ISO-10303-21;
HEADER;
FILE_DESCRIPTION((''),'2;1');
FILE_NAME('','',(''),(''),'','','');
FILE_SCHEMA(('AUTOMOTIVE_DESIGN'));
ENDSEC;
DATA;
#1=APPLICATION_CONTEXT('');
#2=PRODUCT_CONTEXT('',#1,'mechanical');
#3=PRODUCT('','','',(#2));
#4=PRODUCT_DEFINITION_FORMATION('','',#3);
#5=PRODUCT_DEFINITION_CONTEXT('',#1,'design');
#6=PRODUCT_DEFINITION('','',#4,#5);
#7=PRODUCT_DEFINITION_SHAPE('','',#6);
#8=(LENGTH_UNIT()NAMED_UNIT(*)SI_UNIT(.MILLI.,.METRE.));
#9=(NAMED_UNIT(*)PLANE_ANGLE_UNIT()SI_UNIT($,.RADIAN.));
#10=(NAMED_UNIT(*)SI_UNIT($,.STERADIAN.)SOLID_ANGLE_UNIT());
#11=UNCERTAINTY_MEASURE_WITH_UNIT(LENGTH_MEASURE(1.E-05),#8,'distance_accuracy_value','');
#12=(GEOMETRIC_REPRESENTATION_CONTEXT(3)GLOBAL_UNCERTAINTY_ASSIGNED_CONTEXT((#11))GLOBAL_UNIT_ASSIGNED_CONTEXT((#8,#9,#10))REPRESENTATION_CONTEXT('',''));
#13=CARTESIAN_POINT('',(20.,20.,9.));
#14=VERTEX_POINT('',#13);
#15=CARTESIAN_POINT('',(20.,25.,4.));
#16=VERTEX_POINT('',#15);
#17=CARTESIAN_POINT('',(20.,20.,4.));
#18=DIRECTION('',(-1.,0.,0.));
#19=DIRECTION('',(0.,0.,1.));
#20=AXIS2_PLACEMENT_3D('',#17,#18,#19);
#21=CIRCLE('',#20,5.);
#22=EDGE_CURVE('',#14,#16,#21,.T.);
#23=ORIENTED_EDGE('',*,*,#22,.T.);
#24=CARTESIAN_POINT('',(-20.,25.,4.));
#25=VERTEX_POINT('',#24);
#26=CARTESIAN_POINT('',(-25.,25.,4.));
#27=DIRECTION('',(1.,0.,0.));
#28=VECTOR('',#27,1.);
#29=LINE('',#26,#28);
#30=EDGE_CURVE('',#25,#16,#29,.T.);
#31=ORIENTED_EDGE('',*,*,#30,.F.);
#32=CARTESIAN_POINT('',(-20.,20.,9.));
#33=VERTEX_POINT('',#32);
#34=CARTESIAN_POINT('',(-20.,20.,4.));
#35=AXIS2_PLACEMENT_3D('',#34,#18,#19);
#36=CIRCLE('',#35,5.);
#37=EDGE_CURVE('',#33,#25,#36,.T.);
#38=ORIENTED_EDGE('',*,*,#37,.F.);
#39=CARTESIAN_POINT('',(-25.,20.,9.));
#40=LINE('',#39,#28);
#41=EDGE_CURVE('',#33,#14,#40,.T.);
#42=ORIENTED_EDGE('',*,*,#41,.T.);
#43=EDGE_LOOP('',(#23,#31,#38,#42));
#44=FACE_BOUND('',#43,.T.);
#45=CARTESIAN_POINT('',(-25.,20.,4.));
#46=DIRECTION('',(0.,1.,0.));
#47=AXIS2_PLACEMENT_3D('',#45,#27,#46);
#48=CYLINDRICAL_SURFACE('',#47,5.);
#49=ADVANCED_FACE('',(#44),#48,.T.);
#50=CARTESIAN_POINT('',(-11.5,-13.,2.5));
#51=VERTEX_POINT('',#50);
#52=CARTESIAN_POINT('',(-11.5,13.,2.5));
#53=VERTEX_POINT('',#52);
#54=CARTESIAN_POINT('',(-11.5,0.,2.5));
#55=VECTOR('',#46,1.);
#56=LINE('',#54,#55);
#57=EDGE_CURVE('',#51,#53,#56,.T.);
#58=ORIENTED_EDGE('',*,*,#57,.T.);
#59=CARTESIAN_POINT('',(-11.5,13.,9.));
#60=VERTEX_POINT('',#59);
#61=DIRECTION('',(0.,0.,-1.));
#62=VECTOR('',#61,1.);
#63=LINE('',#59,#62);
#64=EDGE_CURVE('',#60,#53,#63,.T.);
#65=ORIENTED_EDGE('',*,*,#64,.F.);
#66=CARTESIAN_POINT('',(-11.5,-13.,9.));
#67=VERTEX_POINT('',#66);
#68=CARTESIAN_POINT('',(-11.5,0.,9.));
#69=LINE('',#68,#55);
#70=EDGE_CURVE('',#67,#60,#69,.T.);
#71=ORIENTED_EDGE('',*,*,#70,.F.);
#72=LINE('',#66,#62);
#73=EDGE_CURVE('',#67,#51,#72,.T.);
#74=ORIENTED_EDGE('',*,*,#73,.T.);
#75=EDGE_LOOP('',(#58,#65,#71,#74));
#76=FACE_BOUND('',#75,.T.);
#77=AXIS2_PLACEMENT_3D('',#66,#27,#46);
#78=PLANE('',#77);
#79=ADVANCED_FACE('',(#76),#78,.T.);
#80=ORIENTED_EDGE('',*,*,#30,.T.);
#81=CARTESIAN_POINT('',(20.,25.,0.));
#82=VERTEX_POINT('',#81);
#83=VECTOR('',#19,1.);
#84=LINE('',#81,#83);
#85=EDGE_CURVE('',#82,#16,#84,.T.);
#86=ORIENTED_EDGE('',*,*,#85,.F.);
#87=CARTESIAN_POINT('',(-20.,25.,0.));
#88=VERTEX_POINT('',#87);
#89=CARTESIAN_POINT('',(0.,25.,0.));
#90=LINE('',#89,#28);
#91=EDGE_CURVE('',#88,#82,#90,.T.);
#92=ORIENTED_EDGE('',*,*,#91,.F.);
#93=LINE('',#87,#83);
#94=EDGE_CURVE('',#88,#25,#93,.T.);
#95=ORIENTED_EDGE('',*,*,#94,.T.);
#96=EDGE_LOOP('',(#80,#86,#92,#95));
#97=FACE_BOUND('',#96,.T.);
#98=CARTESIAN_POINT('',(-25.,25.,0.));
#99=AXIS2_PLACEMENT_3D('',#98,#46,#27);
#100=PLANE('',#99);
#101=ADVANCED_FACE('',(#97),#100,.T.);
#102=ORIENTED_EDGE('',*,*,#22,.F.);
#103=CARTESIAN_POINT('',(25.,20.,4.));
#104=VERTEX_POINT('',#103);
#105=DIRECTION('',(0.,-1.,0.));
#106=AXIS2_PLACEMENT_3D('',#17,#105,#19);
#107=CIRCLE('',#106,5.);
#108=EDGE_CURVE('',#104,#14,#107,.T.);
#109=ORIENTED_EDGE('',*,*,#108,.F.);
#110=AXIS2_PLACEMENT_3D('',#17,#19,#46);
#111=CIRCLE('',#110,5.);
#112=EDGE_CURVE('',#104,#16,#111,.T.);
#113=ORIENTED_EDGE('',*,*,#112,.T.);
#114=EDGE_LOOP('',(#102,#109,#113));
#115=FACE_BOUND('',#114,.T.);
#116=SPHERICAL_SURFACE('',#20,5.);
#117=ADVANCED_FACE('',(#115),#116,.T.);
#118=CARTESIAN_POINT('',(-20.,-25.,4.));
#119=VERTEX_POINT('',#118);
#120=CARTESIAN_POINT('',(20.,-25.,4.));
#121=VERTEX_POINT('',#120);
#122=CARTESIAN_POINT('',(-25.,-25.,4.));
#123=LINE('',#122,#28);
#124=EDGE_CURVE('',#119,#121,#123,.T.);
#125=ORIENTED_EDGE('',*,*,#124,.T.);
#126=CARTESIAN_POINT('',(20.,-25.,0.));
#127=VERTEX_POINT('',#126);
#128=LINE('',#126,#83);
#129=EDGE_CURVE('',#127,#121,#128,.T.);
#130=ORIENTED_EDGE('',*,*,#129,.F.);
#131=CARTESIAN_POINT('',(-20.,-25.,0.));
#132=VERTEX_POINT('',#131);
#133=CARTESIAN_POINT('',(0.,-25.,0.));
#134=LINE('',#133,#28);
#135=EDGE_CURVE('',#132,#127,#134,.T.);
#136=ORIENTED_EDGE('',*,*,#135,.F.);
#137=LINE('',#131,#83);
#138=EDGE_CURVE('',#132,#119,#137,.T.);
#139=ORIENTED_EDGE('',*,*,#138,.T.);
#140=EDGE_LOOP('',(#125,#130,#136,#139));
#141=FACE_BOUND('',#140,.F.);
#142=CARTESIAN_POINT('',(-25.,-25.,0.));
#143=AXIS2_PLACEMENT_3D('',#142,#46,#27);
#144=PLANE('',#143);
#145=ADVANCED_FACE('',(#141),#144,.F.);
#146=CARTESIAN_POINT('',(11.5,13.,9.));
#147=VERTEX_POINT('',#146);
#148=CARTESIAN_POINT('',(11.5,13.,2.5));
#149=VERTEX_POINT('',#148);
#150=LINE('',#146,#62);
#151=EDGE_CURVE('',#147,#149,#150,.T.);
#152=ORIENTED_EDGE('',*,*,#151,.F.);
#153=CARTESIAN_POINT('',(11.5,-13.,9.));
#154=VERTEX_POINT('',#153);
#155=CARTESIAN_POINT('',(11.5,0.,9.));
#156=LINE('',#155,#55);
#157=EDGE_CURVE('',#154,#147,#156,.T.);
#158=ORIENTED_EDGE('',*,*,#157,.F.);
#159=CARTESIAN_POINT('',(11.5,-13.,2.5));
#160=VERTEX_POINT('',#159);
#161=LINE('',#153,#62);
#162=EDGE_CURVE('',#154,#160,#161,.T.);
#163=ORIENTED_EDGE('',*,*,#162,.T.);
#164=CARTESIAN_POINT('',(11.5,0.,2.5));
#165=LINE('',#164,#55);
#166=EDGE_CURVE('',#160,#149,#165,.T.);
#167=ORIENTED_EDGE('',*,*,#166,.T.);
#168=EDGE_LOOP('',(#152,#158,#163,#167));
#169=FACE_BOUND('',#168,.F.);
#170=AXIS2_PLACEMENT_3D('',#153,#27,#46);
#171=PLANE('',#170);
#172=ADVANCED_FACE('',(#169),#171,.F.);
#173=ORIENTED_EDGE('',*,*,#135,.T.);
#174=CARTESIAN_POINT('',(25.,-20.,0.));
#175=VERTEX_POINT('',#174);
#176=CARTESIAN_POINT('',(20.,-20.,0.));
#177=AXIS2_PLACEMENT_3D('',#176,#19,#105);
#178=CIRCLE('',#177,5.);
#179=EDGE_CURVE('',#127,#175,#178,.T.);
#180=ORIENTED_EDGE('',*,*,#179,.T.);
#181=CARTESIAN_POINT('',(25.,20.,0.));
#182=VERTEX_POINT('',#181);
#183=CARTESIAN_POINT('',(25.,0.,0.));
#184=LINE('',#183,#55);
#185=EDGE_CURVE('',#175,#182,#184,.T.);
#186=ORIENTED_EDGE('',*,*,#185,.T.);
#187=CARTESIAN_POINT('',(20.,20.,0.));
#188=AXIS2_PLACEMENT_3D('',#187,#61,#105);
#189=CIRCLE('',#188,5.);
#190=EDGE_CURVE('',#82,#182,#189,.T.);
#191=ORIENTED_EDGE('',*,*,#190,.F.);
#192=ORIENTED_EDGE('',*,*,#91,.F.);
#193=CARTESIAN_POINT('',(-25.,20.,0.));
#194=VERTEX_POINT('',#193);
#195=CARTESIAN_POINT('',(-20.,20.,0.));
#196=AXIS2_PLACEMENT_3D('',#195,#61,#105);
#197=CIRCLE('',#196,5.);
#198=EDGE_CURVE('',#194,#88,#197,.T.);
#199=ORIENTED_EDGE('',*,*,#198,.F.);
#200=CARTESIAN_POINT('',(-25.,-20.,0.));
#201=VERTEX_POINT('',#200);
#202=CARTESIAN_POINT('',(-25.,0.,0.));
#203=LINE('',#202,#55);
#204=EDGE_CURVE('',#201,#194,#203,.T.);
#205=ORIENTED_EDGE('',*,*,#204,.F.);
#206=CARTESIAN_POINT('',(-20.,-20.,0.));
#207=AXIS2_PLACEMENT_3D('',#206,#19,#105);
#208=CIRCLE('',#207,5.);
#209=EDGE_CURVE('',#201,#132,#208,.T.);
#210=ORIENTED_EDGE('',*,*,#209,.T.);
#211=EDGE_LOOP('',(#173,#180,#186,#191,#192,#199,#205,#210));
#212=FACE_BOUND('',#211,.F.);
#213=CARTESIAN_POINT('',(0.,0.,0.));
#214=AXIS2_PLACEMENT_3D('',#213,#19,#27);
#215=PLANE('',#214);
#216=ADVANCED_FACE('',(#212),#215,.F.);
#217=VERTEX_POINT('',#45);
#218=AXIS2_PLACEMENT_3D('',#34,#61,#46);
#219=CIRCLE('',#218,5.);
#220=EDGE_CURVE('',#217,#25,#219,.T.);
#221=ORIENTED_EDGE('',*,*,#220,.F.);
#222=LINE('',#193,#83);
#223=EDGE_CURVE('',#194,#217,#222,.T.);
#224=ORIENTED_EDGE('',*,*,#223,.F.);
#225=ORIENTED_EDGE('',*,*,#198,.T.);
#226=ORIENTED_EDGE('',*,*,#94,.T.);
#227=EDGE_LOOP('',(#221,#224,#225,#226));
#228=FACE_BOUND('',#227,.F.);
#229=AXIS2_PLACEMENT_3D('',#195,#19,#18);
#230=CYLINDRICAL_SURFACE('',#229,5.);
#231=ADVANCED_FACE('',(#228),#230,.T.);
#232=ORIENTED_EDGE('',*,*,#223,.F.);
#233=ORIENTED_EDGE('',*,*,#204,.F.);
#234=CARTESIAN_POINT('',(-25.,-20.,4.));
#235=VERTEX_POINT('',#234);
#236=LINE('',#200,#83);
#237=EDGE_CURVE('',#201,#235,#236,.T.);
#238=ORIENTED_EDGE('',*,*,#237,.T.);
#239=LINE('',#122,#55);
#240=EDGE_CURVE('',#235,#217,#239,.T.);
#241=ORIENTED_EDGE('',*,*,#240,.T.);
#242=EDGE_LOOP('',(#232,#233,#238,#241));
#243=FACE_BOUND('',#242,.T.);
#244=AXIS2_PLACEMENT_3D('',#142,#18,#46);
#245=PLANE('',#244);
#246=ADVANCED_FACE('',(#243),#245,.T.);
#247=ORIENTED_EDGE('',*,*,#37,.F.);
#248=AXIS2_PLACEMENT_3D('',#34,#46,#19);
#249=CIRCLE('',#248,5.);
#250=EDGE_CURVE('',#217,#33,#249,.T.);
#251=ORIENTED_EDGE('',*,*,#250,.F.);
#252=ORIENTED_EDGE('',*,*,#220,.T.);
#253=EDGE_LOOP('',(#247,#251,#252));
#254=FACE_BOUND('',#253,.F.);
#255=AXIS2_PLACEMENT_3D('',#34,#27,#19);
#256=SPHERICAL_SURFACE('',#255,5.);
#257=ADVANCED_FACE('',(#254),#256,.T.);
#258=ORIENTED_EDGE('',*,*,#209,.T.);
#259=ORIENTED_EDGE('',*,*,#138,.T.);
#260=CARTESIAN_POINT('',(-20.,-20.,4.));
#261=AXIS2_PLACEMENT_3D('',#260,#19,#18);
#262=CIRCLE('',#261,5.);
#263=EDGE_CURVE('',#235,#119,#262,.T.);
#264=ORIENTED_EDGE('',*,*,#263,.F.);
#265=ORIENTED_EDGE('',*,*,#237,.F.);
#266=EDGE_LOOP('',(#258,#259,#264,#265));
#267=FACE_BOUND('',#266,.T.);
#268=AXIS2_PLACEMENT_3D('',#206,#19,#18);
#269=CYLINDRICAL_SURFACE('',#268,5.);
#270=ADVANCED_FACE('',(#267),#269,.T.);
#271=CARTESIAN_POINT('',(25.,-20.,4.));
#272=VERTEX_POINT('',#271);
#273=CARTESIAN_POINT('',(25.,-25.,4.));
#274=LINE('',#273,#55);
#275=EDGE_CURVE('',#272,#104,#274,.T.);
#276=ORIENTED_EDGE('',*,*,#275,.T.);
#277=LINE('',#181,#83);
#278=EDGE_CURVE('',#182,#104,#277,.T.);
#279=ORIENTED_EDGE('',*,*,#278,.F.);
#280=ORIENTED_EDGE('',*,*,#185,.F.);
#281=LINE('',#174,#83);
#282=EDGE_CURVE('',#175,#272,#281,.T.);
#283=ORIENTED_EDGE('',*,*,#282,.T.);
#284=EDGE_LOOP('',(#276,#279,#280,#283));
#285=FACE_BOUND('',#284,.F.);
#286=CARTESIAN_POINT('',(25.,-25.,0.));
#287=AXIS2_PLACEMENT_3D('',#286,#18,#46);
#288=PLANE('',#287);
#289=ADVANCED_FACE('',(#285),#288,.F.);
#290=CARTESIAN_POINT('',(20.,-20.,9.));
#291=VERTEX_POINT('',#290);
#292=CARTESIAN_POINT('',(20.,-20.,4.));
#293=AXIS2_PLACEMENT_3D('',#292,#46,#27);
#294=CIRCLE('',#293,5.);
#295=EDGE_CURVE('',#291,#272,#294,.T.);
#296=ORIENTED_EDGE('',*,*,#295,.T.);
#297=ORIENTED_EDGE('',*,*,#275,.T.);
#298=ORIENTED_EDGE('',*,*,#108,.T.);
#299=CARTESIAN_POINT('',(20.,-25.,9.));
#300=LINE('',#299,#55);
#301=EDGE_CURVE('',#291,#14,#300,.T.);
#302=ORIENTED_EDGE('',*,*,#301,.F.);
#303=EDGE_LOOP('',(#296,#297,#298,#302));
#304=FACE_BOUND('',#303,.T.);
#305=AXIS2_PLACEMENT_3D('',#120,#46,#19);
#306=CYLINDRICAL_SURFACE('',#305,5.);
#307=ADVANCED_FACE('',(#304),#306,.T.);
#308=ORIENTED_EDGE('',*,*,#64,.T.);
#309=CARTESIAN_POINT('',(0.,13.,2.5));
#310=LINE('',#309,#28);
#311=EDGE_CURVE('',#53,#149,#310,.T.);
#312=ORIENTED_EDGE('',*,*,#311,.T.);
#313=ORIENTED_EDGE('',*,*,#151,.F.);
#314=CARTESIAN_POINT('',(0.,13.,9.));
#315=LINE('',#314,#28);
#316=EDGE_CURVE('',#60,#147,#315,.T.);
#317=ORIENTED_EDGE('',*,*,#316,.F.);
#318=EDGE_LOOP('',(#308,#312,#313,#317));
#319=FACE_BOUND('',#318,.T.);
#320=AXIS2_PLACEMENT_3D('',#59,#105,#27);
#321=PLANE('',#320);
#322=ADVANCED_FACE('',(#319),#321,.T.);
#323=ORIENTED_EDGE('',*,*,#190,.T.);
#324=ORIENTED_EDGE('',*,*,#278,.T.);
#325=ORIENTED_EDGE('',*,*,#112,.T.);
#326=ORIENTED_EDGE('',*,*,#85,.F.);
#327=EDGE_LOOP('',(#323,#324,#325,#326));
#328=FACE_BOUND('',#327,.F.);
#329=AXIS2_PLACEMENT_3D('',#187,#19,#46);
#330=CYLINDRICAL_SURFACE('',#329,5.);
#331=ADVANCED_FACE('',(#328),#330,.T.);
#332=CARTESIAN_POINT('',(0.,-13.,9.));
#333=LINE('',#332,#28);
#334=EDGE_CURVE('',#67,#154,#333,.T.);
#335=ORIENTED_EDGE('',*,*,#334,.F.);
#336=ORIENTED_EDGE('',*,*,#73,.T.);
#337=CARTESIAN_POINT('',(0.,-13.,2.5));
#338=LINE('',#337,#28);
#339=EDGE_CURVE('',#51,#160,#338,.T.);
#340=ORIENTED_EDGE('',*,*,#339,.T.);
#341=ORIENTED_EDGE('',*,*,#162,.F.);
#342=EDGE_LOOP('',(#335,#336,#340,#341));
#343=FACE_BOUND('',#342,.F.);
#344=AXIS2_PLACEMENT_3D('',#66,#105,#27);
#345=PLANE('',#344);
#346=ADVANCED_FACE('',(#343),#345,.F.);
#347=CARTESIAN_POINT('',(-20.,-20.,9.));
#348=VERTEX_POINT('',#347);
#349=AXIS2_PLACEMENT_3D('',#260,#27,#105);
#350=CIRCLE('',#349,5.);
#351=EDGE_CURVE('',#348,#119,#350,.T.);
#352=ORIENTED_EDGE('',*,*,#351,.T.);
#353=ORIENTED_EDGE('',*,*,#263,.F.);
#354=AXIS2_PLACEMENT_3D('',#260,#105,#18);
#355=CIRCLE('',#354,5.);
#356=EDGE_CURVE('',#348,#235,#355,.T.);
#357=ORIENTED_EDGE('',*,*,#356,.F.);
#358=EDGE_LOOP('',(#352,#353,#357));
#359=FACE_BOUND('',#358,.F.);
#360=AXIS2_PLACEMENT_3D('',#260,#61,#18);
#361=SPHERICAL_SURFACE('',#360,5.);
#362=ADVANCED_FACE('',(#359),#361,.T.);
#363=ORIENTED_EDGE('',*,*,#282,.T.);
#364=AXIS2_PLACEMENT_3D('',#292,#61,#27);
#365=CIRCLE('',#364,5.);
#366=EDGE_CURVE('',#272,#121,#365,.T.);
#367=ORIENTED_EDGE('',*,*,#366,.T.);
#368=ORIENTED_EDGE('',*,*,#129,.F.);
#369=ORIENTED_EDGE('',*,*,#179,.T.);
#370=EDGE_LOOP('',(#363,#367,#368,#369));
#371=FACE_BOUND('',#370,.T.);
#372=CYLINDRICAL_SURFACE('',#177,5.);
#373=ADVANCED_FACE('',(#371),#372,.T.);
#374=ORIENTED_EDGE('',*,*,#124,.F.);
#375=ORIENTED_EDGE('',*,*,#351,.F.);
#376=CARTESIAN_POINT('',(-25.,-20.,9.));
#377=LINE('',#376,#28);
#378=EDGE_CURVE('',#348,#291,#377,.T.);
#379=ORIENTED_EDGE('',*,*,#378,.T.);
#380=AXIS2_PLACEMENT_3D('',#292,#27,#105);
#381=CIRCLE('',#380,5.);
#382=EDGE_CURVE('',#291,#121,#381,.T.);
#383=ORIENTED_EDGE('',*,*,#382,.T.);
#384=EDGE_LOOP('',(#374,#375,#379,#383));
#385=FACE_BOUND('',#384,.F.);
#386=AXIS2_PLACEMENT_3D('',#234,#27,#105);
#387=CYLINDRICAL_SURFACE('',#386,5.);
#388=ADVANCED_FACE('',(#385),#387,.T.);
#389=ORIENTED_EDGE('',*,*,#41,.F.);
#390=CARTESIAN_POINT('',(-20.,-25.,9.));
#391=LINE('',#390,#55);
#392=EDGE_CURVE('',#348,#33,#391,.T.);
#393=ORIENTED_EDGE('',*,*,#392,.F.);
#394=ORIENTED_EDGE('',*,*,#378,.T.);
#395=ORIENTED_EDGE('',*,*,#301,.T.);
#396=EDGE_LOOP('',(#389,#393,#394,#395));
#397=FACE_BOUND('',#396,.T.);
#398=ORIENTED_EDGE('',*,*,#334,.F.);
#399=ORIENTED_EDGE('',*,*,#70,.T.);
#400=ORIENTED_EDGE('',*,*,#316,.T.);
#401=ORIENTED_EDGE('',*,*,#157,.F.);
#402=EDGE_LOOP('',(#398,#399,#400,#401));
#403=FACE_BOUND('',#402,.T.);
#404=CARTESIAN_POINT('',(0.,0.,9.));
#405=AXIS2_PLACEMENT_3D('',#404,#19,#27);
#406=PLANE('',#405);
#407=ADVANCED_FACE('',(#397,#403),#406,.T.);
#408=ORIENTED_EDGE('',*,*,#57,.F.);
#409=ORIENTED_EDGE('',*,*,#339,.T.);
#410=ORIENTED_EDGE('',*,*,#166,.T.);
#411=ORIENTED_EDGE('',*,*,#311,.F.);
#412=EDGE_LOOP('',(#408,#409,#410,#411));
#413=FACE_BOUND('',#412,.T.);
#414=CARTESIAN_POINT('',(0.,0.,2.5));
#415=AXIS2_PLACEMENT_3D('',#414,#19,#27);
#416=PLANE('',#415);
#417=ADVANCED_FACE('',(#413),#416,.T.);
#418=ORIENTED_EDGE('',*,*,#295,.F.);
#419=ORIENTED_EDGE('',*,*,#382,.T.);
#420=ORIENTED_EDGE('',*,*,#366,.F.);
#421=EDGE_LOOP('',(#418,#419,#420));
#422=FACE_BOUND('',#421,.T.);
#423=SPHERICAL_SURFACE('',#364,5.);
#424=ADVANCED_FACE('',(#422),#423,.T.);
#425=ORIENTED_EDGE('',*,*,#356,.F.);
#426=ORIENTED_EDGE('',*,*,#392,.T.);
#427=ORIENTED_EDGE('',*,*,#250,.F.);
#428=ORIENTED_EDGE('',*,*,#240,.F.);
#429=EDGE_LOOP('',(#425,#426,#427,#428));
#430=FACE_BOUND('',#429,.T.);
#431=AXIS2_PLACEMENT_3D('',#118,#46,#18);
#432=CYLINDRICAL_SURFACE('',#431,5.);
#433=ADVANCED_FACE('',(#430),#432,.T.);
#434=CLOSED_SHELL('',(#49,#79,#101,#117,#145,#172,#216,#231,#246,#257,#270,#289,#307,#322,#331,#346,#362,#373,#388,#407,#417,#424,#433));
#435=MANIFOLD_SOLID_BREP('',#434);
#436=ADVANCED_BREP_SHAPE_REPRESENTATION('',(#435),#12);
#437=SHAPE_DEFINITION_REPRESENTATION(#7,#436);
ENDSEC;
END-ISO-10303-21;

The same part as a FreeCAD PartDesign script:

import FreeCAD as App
import Part
import Sketcher
from FreeCAD import Vector
Q = App.Units.Quantity


def edges_at(feature, points):
    """Names of the edges that pass closest to the given points."""
    edges = feature.Shape.Edges
    near = lambda p: min(range(len(edges)), key=lambda i: edges[i].distToShape(Part.Vertex(*p))[0])
    return sorted({f"Edge{near(p) + 1}" for p in points})

doc = App.newDocument("Part")
body = doc.addObject("PartDesign::Body", "Body")

sketch1 = doc.addObject("Sketcher::SketchObject", "Sketch")
body.addObject(sketch1)
sketch1.AttachmentSupport = (doc.XY_Plane, [""])
sketch1.MapMode = "FlatFace"
sketch1.addGeometry([
    Part.LineSegment(Vector(-25, 25, 0), Vector(-25, -25, 0)),
    Part.LineSegment(Vector(-25, -25, 0), Vector(25, -25, 0)),
    Part.LineSegment(Vector(25, -25, 0), Vector(25, 25, 0)),
    Part.LineSegment(Vector(25, 25, 0), Vector(-25, 25, 0)),
], False)
sketch1.addConstraint([
    Sketcher.Constraint("Coincident", 0, 2, 1, 1),
    Sketcher.Constraint("Coincident", 1, 2, 2, 1),
    Sketcher.Constraint("Coincident", 2, 2, 3, 1),
    Sketcher.Constraint("Coincident", 3, 2, 0, 1),
    Sketcher.Constraint("Vertical", 0),
    Sketcher.Constraint("Horizontal", 1),
    Sketcher.Constraint("Vertical", 2),
    Sketcher.Constraint("Horizontal", 3),
    Sketcher.Constraint("Symmetric", 0, 2, 2, 2, -1, 1),
    Sketcher.Constraint("Equal", 3, 0),
    Sketcher.Constraint("DistanceX", 1, 1, 1, 2, Q("50 mm")),
])
pad1 = doc.addObject("PartDesign::Pad", "Pad")
body.addObject(pad1)
pad1.Profile = sketch1
pad1.Length = 9

sketch2 = doc.addObject("Sketcher::SketchObject", "Sketch001")
body.addObject(sketch2)
sketch2.AttachmentSupport = (doc.XY_Plane, [""])
sketch2.MapMode = "FlatFace"
sketch2.AttachmentOffset = App.Placement(Vector(0, 0, 9), App.Rotation())
sketch2.addGeometry([
    Part.LineSegment(Vector(-11.5, 13, 0), Vector(-11.5, -13, 0)),
    Part.LineSegment(Vector(-11.5, -13, 0), Vector(11.5, -13, 0)),
    Part.LineSegment(Vector(11.5, -13, 0), Vector(11.5, 13, 0)),
    Part.LineSegment(Vector(11.5, 13, 0), Vector(-11.5, 13, 0)),
], False)
sketch2.addConstraint([
    Sketcher.Constraint("Coincident", 0, 2, 1, 1),
    Sketcher.Constraint("Coincident", 1, 2, 2, 1),
    Sketcher.Constraint("Coincident", 2, 2, 3, 1),
    Sketcher.Constraint("Coincident", 3, 2, 0, 1),
    Sketcher.Constraint("Vertical", 0),
    Sketcher.Constraint("Horizontal", 1),
    Sketcher.Constraint("Vertical", 2),
    Sketcher.Constraint("Horizontal", 3),
    Sketcher.Constraint("Symmetric", 0, 2, 2, 2, -1, 1),
    Sketcher.Constraint("DistanceX", 1, 1, 1, 2, Q("23 mm")),
    Sketcher.Constraint("DistanceY", 0, 2, 0, 1, Q("26 mm")),
])
pocket1 = doc.addObject("PartDesign::Pocket", "Pocket")
body.addObject(pocket1)
pocket1.Profile = sketch2
pocket1.Length = 6.5
doc.recompute()

fillet = doc.addObject("PartDesign::Fillet", "Fillet")
body.addObject(fillet)
fillet.Base = (pocket1, edges_at(pocket1, [
    (-25, -25, 4.5),
    (25, -25, 4.5),
    (0, 25, 9),
    (-25, 0, 9),
    (25, 0, 9),
    (0, -25, 9),
    (-25, 25, 4.5),
    (25, 25, 4.5),
]))
fillet.Radius = 5

doc.recompute()
